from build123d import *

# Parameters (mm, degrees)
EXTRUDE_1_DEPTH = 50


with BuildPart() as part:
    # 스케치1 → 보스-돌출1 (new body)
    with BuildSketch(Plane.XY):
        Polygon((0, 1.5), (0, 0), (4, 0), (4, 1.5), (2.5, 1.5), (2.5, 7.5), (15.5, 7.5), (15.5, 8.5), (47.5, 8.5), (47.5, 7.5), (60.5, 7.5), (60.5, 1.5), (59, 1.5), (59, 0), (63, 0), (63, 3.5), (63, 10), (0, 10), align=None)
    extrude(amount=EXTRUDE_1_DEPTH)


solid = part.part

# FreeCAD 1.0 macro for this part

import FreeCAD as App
import Part
import Sketcher

V = App.Vector


def add_polygon(sketch, points):
    """Adds a closed chain of lines whose ends are joined by coincident constraints."""
    first, n = sketch.GeometryCount, len(points)
    for a, b in zip(points, points[1:] + points[:1]):
        sketch.addGeometry(Part.LineSegment(App.Vector(*a, 0), App.Vector(*b, 0)), False)
    for i in range(n):
        sketch.addConstraint(Sketcher.Constraint("Coincident", first + i, 2, first + (i + 1) % n, 1))

doc = App.newDocument("Part")
body = doc.addObject("PartDesign::Body", "Body")

# Sketch on XY plane
sketch1 = doc.addObject("Sketcher::SketchObject", "Sketch")
body.addObject(sketch1)
sketch1.AttachmentSupport = (doc.XY_Plane, [""])
sketch1.MapMode = "FlatFace"
add_polygon(sketch1, [(0, 0), (4, 0), (4, 1.5), (2.5, 1.5), (2.5, 7.5), (15.5, 7.5), (15.5, 8.5), (47.5, 8.5), (47.5, 7.5), (60.5, 7.5), (60.5, 1.5), (59, 1.5), (59, 0), (63, 0), (63, 10), (0, 10)])  # lines 0-15
sketch1.addConstraint([
    Sketcher.Constraint("Horizontal", 0),
    Sketcher.Constraint("Vertical", 1),
    Sketcher.Constraint("Horizontal", 2),
    Sketcher.Constraint("Vertical", 3),
    Sketcher.Constraint("Horizontal", 4),
    Sketcher.Constraint("Vertical", 5),
    Sketcher.Constraint("Horizontal", 6),
    Sketcher.Constraint("Vertical", 7),
    Sketcher.Constraint("Horizontal", 8),
    Sketcher.Constraint("Vertical", 9),
    Sketcher.Constraint("Horizontal", 10),
    Sketcher.Constraint("Vertical", 11),
    Sketcher.Constraint("Horizontal", 12),
    Sketcher.Constraint("Vertical", 13),
    Sketcher.Constraint("Horizontal", 14),
    Sketcher.Constraint("Vertical", 15),
    Sketcher.Constraint("Coincident", 15, 2, -1, 1),
    Sketcher.Constraint("PointOnObject", 11, 2, -1),
    Sketcher.Constraint("Horizontal", 4, 2, 7, 2),
    Sketcher.Constraint("Horizontal", 2, 2, 9, 2),
    Sketcher.Constraint("Equal", 4, 8),
    Sketcher.Constraint("Equal", 2, 10),
    Sketcher.Constraint("Equal", 0, 12),
    Sketcher.Constraint("Equal", 10, 1),
    Sketcher.Constraint("DistanceX", 0, 1, 0, 2, 4.0),
    Sketcher.Constraint("DistanceX", 4, 1, 4, 2, 13.0),
    Sketcher.Constraint("DistanceX", 6, 1, 6, 2, 32.0),
    Sketcher.Constraint("DistanceX", 14, 2, 14, 1, 63.0),
    Sketcher.Constraint("DistanceY", 3, 1, 3, 2, 6.0),
    Sketcher.Constraint("DistanceY", 5, 1, 5, 2, 1.0),
    Sketcher.Constraint("DistanceY", 13, 1, 13, 2, 10.0),
])
pad1 = doc.addObject("PartDesign::Pad", "Pad")
body.addObject(pad1)
pad1.Profile = sketch1
pad1.Length = 50

doc.recompute()
